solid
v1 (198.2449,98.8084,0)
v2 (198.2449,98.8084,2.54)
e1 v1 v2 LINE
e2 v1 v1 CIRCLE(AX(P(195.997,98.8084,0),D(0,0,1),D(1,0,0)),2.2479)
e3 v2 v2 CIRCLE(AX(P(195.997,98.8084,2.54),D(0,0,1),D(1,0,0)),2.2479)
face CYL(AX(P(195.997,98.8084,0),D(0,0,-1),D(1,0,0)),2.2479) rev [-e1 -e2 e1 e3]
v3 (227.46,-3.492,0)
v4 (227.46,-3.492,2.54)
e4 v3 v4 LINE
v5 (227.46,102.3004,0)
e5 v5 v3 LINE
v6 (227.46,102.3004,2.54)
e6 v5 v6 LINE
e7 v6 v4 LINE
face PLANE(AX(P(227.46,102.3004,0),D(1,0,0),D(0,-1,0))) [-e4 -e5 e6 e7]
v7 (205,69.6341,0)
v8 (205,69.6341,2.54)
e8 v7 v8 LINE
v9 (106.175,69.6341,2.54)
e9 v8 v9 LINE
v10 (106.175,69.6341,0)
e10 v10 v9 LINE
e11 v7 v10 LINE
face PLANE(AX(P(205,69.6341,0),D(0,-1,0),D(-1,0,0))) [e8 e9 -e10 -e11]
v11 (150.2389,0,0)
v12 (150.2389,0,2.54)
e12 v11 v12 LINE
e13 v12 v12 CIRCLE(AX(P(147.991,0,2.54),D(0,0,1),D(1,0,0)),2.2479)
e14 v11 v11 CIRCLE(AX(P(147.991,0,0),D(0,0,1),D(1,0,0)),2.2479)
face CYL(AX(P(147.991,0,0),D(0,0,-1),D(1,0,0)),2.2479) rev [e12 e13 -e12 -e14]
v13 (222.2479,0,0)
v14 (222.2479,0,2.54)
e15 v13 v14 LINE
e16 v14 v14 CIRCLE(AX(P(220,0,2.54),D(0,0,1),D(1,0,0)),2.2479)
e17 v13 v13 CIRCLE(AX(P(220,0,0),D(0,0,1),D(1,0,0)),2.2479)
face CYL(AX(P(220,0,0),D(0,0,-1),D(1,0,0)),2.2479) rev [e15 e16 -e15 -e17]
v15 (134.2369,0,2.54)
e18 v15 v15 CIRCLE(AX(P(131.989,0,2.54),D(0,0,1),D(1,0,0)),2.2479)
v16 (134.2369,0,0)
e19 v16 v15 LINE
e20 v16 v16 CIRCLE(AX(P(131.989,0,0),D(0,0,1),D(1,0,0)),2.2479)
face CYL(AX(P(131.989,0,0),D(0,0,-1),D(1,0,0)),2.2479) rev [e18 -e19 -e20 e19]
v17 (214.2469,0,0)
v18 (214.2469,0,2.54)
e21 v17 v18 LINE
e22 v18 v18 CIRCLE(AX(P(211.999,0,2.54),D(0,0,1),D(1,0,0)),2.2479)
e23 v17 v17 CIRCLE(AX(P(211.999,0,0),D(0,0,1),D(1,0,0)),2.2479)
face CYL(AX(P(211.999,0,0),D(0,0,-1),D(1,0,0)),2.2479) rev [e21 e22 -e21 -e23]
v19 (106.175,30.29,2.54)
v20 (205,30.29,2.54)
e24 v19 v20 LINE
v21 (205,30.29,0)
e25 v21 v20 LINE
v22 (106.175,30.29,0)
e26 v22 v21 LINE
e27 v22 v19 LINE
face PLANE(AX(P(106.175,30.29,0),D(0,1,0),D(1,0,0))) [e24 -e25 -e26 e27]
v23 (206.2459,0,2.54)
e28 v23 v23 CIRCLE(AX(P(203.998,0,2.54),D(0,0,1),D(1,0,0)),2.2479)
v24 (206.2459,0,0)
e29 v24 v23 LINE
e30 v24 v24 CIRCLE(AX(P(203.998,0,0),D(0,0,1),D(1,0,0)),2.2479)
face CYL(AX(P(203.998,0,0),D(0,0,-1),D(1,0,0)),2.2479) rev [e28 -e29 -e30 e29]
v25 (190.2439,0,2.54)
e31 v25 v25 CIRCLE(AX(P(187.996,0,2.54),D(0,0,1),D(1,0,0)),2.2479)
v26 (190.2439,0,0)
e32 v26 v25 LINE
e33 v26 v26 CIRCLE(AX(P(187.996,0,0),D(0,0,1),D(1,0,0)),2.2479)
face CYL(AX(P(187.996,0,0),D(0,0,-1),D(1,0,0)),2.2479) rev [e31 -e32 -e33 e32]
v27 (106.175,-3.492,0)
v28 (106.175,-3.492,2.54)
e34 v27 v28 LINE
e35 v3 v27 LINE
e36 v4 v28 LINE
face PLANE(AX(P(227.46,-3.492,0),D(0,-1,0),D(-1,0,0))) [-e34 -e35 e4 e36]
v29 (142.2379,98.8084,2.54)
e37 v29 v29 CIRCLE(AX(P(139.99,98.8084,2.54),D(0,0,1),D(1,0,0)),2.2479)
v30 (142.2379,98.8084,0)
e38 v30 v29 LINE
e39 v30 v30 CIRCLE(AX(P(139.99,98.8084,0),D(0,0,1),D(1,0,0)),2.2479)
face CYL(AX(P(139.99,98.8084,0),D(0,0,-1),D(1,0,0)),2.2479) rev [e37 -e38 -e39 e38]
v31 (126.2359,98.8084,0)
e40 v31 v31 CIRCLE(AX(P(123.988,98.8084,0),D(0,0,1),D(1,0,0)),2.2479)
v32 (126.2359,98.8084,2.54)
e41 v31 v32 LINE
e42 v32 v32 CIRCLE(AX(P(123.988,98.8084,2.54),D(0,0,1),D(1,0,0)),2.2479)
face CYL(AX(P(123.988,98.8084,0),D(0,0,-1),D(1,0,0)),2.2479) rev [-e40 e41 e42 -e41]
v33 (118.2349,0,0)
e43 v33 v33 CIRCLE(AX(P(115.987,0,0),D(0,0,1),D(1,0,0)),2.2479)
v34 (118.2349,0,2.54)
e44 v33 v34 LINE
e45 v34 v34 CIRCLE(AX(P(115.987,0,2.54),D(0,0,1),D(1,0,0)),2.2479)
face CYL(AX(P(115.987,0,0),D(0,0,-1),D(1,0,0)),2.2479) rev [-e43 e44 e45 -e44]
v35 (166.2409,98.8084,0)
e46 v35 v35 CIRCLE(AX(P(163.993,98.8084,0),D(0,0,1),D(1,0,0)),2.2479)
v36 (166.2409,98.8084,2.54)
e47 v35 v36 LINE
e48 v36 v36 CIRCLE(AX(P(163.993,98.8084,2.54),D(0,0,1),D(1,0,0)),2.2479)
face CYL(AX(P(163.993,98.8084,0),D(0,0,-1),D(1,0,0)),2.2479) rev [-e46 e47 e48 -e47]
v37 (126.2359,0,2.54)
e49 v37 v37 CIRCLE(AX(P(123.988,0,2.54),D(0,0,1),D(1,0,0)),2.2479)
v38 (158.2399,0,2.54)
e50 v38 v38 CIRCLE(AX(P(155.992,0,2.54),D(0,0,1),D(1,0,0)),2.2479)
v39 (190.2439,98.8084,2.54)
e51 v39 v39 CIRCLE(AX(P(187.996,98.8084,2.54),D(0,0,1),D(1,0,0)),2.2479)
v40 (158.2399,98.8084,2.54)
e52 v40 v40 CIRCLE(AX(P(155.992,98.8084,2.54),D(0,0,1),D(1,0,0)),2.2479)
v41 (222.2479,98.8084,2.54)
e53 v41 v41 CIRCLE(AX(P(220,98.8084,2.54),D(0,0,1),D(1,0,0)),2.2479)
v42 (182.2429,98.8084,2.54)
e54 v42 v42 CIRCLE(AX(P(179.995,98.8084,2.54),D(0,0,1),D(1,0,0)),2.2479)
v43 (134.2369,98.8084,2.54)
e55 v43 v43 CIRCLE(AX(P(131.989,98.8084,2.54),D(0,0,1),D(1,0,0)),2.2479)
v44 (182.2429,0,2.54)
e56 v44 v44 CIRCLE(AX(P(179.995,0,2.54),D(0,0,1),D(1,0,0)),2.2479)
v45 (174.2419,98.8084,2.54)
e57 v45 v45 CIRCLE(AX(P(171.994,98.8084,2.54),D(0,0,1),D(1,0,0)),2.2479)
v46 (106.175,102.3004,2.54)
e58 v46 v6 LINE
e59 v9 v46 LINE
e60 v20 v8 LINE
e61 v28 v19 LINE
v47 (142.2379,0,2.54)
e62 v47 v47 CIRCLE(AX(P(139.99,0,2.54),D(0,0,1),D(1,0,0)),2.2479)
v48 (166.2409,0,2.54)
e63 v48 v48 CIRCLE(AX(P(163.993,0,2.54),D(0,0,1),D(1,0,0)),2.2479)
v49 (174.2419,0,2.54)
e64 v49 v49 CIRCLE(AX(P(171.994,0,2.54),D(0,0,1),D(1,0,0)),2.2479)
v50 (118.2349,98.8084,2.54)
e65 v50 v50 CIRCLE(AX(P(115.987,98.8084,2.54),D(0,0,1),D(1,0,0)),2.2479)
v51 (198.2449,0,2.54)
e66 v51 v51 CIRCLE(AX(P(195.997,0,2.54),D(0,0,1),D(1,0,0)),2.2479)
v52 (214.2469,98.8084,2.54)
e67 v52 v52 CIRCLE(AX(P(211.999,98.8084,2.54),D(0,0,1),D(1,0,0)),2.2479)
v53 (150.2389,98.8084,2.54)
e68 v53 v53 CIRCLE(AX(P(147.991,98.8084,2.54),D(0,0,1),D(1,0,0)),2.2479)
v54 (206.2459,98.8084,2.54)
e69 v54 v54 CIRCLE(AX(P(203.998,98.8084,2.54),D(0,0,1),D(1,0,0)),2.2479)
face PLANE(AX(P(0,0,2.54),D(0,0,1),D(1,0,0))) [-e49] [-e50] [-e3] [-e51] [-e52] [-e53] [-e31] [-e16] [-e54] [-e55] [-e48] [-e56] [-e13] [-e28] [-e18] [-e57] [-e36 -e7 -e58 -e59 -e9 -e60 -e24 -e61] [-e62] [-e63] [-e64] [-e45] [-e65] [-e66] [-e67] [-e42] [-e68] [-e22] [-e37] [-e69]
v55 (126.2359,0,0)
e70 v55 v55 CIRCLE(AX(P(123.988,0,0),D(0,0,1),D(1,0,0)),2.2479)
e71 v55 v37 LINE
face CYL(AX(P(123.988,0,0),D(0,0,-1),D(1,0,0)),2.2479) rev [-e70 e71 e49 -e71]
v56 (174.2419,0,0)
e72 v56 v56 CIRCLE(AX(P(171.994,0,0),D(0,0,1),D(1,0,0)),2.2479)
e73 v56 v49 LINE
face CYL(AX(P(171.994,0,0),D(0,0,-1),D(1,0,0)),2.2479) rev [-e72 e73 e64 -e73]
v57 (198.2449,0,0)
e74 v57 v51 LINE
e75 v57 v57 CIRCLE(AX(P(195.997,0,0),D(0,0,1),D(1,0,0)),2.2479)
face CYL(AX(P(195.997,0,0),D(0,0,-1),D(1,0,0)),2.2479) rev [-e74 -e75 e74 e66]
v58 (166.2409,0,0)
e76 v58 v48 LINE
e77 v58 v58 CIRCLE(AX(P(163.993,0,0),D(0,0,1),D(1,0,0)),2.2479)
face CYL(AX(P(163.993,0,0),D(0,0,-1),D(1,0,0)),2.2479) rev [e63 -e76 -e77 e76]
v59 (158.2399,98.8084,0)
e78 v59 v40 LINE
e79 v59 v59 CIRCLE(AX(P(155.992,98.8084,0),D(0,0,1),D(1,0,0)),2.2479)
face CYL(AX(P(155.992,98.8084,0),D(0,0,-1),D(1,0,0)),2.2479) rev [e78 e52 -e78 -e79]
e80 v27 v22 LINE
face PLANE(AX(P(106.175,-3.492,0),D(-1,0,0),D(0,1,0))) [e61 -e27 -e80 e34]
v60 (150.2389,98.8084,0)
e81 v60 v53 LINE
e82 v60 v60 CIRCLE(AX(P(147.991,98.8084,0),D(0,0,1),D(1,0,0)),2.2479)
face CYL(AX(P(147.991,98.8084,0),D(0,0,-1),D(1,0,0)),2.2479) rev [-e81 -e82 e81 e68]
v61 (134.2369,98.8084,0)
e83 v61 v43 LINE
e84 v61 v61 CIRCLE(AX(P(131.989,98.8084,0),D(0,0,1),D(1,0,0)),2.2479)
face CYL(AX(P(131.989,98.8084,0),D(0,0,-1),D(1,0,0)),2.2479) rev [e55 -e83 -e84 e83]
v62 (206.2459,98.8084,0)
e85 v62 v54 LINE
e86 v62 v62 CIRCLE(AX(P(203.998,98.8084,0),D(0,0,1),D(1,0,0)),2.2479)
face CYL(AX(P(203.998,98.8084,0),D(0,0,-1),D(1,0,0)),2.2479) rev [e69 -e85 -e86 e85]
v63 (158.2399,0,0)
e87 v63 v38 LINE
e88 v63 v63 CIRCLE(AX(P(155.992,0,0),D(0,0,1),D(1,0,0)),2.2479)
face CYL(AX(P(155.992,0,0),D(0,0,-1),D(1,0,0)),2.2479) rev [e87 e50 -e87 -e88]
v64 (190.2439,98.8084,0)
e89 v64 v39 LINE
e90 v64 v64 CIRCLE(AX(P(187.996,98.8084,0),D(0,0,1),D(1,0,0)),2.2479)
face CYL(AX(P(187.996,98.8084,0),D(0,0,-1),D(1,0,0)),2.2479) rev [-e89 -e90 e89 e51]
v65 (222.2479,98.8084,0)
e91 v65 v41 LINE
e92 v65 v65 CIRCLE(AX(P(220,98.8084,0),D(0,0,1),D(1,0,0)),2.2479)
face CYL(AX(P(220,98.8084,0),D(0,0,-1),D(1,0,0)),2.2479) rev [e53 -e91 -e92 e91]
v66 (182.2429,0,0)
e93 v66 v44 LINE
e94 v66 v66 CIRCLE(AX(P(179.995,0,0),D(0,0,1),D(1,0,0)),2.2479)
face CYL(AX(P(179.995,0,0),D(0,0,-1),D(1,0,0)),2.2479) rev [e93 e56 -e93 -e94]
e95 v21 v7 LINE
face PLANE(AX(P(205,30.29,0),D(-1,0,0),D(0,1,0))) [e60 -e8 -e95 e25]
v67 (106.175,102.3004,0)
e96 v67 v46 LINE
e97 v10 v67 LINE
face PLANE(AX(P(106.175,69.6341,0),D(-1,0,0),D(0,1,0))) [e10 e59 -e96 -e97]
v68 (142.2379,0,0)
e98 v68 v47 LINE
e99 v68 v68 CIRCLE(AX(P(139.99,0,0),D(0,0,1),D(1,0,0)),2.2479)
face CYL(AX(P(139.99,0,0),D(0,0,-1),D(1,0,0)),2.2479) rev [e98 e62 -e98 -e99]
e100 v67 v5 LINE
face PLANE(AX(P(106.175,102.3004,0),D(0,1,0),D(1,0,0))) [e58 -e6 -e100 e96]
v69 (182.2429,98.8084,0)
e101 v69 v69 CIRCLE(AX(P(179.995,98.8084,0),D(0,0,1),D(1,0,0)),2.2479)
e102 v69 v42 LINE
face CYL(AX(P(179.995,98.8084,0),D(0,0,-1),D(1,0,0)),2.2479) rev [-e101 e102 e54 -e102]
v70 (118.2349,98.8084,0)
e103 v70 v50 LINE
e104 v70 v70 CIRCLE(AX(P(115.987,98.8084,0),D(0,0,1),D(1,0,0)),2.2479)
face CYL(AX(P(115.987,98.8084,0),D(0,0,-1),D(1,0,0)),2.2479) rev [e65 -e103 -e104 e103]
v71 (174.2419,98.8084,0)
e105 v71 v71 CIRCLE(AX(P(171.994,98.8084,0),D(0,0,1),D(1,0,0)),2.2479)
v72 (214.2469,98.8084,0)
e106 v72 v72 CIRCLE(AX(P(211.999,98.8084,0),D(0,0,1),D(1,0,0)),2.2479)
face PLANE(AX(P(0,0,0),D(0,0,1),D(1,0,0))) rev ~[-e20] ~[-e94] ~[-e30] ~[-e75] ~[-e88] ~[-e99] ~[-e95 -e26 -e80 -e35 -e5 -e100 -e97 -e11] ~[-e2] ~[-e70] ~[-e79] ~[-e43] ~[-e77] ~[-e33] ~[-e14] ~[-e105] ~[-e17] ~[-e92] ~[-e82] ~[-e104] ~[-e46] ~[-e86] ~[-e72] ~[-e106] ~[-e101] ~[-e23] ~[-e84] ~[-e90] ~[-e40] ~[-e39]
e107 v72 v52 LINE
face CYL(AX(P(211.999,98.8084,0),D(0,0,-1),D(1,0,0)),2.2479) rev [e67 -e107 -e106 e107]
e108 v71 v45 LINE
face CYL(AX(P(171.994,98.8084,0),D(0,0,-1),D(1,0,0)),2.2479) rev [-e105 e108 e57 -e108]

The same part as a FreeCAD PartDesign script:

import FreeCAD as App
import Part
import Sketcher

V = App.Vector
Q = App.Units.Quantity

doc = App.newDocument("Part")
params = doc.addObject("Spreadsheet::Sheet", "Params")
for row, (alias, value) in enumerate([
    ("sketch1_diameter", "0.177 in"),
    ("sketch1_height", "1.33 in"),
    ("sketch1_width", "4.775 in"),
    ("pad1_length", "0.1 in"),
], start=1):
    params.set(f"A{row}", alias)
    params.set(f"B{row}", "=" + value)
    params.setAlias(f"B{row}", alias)

body = doc.addObject("PartDesign::Body", "Body")

# Sketch on XY plane
sketch1 = body.newObject("Sketcher::SketchObject", "Sketch")
sketch1.AttachmentSupport = (doc.getObject("XY_Plane"), [""])
sketch1.MapMode = "FlatFace"
sketch1.addGeometry(Part.LineSegment(V(227.46, 102.3004, 0), V(106.175, 102.3004, 0)), False)
sketch1.addGeometry(Part.LineSegment(V(106.175, 102.3004, 0), V(106.175, 69.6341, 0)), False)
sketch1.addGeometry(Part.LineSegment(V(106.175, 69.6341, 0), V(205, 69.6341, 0)), False)
sketch1.addGeometry(Part.LineSegment(V(205, 69.6341, 0), V(205, 30.29, 0)), False)
sketch1.addGeometry(Part.LineSegment(V(205, 30.29, 0), V(106.175, 30.29, 0)), False)
sketch1.addGeometry(Part.LineSegment(V(106.175, 30.29, 0), V(106.175, -3.492, 0)), False)
sketch1.addGeometry(Part.LineSegment(V(106.175, -3.492, 0), V(227.46, -3.492, 0)), False)
sketch1.addGeometry(Part.LineSegment(V(227.46, -3.492, 0), V(227.46, 102.3004, 0)), False)
sketch1.addGeometry(Part.Circle(V(115.987, 0, 0), V(0, 0, 1), 2.2479), False)
sketch1.addGeometry(Part.Circle(V(123.988, 0, 0), V(0, 0, 1), 2.2479), False)
sketch1.addGeometry(Part.Circle(V(131.989, 0, 0), V(0, 0, 1), 2.2479), False)
sketch1.addGeometry(Part.Circle(V(139.99, 0, 0), V(0, 0, 1), 2.2479), False)
sketch1.addGeometry(Part.Circle(V(147.991, 0, 0), V(0, 0, 1), 2.2479), False)
sketch1.addGeometry(Part.Circle(V(155.992, 0, 0), V(0, 0, 1), 2.2479), False)
sketch1.addGeometry(Part.Circle(V(163.993, 0, 0), V(0, 0, 1), 2.2479), False)
sketch1.addGeometry(Part.Circle(V(171.994, 0, 0), V(0, 0, 1), 2.2479), False)
sketch1.addGeometry(Part.Circle(V(179.995, 0, 0), V(0, 0, 1), 2.2479), False)
sketch1.addGeometry(Part.Circle(V(187.996, 0, 0), V(0, 0, 1), 2.2479), False)
sketch1.addGeometry(Part.Circle(V(195.997, 0, 0), V(0, 0, 1), 2.2479), False)
sketch1.addGeometry(Part.Circle(V(203.998, 0, 0), V(0, 0, 1), 2.2479), False)
sketch1.addGeometry(Part.Circle(V(211.999, 0, 0), V(0, 0, 1), 2.2479), False)
sketch1.addGeometry(Part.Circle(V(220, 0, 0), V(0, 0, 1), 2.2479), False)
sketch1.addGeometry(Part.Circle(V(115.987, 98.8084, 0), V(0, 0, 1), 2.2479), False)
sketch1.addGeometry(Part.Circle(V(123.988, 98.8084, 0), V(0, 0, 1), 2.2479), False)
sketch1.addGeometry(Part.Circle(V(131.989, 98.8084, 0), V(0, 0, 1), 2.2479), False)
sketch1.addGeometry(Part.Circle(V(139.99, 98.8084, 0), V(0, 0, 1), 2.2479), False)
sketch1.addGeometry(Part.Circle(V(147.991, 98.8084, 0), V(0, 0, 1), 2.2479), False)
sketch1.addGeometry(Part.Circle(V(155.992, 98.8084, 0), V(0, 0, 1), 2.2479), False)
sketch1.addGeometry(Part.Circle(V(163.993, 98.8084, 0), V(0, 0, 1), 2.2479), False)
sketch1.addGeometry(Part.Circle(V(171.994, 98.8084, 0), V(0, 0, 1), 2.2479), False)
sketch1.addGeometry(Part.Circle(V(179.995, 98.8084, 0), V(0, 0, 1), 2.2479), False)
sketch1.addGeometry(Part.Circle(V(187.996, 98.8084, 0), V(0, 0, 1), 2.2479), False)
sketch1.addGeometry(Part.Circle(V(195.997, 98.8084, 0), V(0, 0, 1), 2.2479), False)
sketch1.addGeometry(Part.Circle(V(203.998, 98.8084, 0), V(0, 0, 1), 2.2479), False)
sketch1.addGeometry(Part.Circle(V(211.999, 98.8084, 0), V(0, 0, 1), 2.2479), False)
sketch1.addGeometry(Part.Circle(V(220, 98.8084, 0), V(0, 0, 1), 2.2479), False)
sketch1.addConstraint(Sketcher.Constraint("Coincident", 0, 2, 1, 1))
sketch1.addConstraint(Sketcher.Constraint("Coincident", 1, 2, 2, 1))
sketch1.addConstraint(Sketcher.Constraint("Coincident", 2, 2, 3, 1))
sketch1.addConstraint(Sketcher.Constraint("Coincident", 3, 2, 4, 1))
sketch1.addConstraint(Sketcher.Constraint("Coincident", 4, 2, 5, 1))
sketch1.addConstraint(Sketcher.Constraint("Coincident", 5, 2, 6, 1))
sketch1.addConstraint(Sketcher.Constraint("Coincident", 6, 2, 7, 1))
sketch1.addConstraint(Sketcher.Constraint("Coincident", 7, 2, 0, 1))
sketch1.addConstraint(Sketcher.Constraint("Horizontal", 0))
sketch1.addConstraint(Sketcher.Constraint("Vertical", 1))
sketch1.addConstraint(Sketcher.Constraint("Horizontal", 2))
sketch1.addConstraint(Sketcher.Constraint("Vertical", 3))
sketch1.addConstraint(Sketcher.Constraint("Horizontal", 4))
sketch1.addConstraint(Sketcher.Constraint("Vertical", 5))
sketch1.addConstraint(Sketcher.Constraint("Horizontal", 6))
sketch1.addConstraint(Sketcher.Constraint("Vertical", 7))
sketch1.addConstraint(Sketcher.Constraint("Equal", 8, 9))
sketch1.addConstraint(Sketcher.Constraint("Equal", 9, 10))
sketch1.addConstraint(Sketcher.Constraint("Equal", 10, 11))
sketch1.addConstraint(Sketcher.Constraint("Equal", 11, 12))
sketch1.addConstraint(Sketcher.Constraint("Equal", 12, 13))
sketch1.addConstraint(Sketcher.Constraint("Equal", 13, 14))
sketch1.addConstraint(Sketcher.Constraint("Equal", 14, 15))
sketch1.addConstraint(Sketcher.Constraint("Equal", 15, 16))
sketch1.addConstraint(Sketcher.Constraint("Equal", 16, 17))
sketch1.addConstraint(Sketcher.Constraint("Equal", 17, 18))
sketch1.addConstraint(Sketcher.Constraint("Equal", 18, 19))
sketch1.addConstraint(Sketcher.Constraint("Equal", 19, 20))
sketch1.addConstraint(Sketcher.Constraint("Equal", 20, 21))
sketch1.addConstraint(Sketcher.Constraint("Equal", 21, 22))
sketch1.addConstraint(Sketcher.Constraint("Equal", 22, 23))
sketch1.addConstraint(Sketcher.Constraint("Equal", 23, 24))
sketch1.addConstraint(Sketcher.Constraint("Equal", 24, 25))
sketch1.addConstraint(Sketcher.Constraint("Equal", 25, 26))
sketch1.addConstraint(Sketcher.Constraint("Equal", 26, 27))
sketch1.addConstraint(Sketcher.Constraint("Equal", 27, 28))
sketch1.addConstraint(Sketcher.Constraint("Equal", 28, 29))
sketch1.addConstraint(Sketcher.Constraint("Equal", 29, 30))
sketch1.addConstraint(Sketcher.Constraint("Equal", 30, 31))
sketch1.addConstraint(Sketcher.Constraint("Equal", 31, 32))
sketch1.addConstraint(Sketcher.Constraint("Equal", 32, 33))
sketch1.addConstraint(Sketcher.Constraint("Equal", 33, 34))
sketch1.addConstraint(Sketcher.Constraint("Equal", 34, 35))
sketch1.addConstraint(Sketcher.Constraint("PointOnObject", 8, 3, -1))
sketch1.addConstraint(Sketcher.Constraint("PointOnObject", 9, 3, -1))
sketch1.addConstraint(Sketcher.Constraint("PointOnObject", 10, 3, -1))
sketch1.addConstraint(Sketcher.Constraint("PointOnObject", 11, 3, -1))
sketch1.addConstraint(Sketcher.Constraint("PointOnObject", 12, 3, -1))
sketch1.addConstraint(Sketcher.Constraint("PointOnObject", 13, 3, -1))
sketch1.addConstraint(Sketcher.Constraint("PointOnObject", 14, 3, -1))
sketch1.addConstraint(Sketcher.Constraint("PointOnObject", 15, 3, -1))
sketch1.addConstraint(Sketcher.Constraint("PointOnObject", 16, 3, -1))
sketch1.addConstraint(Sketcher.Constraint("PointOnObject", 17, 3, -1))
sketch1.addConstraint(Sketcher.Constraint("PointOnObject", 18, 3, -1))
sketch1.addConstraint(Sketcher.Constraint("PointOnObject", 19, 3, -1))
sketch1.addConstraint(Sketcher.Constraint("PointOnObject", 20, 3, -1))
sketch1.addConstraint(Sketcher.Constraint("PointOnObject", 21, 3, -1))
sketch1.addConstraint(Sketcher.Constraint("Horizontal", 22, 3, 23, 3))
sketch1.addConstraint(Sketcher.Constraint("Horizontal", 23, 3, 24, 3))
sketch1.addConstraint(Sketcher.Constraint("Horizontal", 24, 3, 25, 3))
sketch1.addConstraint(Sketcher.Constraint("Horizontal", 25, 3, 26, 3))
sketch1.addConstraint(Sketcher.Constraint("Horizontal", 26, 3, 27, 3))
sketch1.addConstraint(Sketcher.Constraint("Horizontal", 27, 3, 28, 3))
sketch1.addConstraint(Sketcher.Constraint("Horizontal", 28, 3, 29, 3))
sketch1.addConstraint(Sketcher.Constraint("Horizontal", 29, 3, 30, 3))
sketch1.addConstraint(Sketcher.Constraint("Horizontal", 30, 3, 31, 3))
sketch1.addConstraint(Sketcher.Constraint("Horizontal", 31, 3, 32, 3))
sketch1.addConstraint(Sketcher.Constraint("Horizontal", 32, 3, 33, 3))
sketch1.addConstraint(Sketcher.Constraint("Horizontal", 33, 3, 34, 3))
sketch1.addConstraint(Sketcher.Constraint("Horizontal", 34, 3, 35, 3))
sketch1.addConstraint(Sketcher.Constraint("Vertical", 8, 3, 22, 3))
sketch1.addConstraint(Sketcher.Constraint("Vertical", 9, 3, 23, 3))
sketch1.addConstraint(Sketcher.Constraint("Vertical", 10, 3, 24, 3))
sketch1.addConstraint(Sketcher.Constraint("Vertical", 11, 3, 25, 3))
sketch1.addConstraint(Sketcher.Constraint("Vertical", 12, 3, 26, 3))
sketch1.addConstraint(Sketcher.Constraint("Vertical", 13, 3, 27, 3))
sketch1.addConstraint(Sketcher.Constraint("Vertical", 14, 3, 28, 3))
sketch1.addConstraint(Sketcher.Constraint("Vertical", 15, 3, 29, 3))
sketch1.addConstraint(Sketcher.Constraint("Vertical", 16, 3, 30, 3))
sketch1.addConstraint(Sketcher.Constraint("Vertical", 17, 3, 31, 3))
sketch1.addConstraint(Sketcher.Constraint("Vertical", 18, 3, 32, 3))
sketch1.addConstraint(Sketcher.Constraint("Vertical", 19, 3, 33, 3))
sketch1.addConstraint(Sketcher.Constraint("Vertical", 20, 3, 34, 3))
sketch1.addConstraint(Sketcher.Constraint("Vertical", 21, 3, 35, 3))
sketch1.addConstraint(Sketcher.Constraint("Vertical", 1, 2, 4, 2))
sketch1.addConstraint(Sketcher.Constraint("Diameter", 8, Q("0.177 in")))
sketch1.addConstraint(Sketcher.Constraint("DistanceX", 8, 3, 9, 3, Q("0.315 in")))
sketch1.addConstraint(Sketcher.Constraint("DistanceX", 9, 3, 10, 3, Q("0.315 in")))
sketch1.addConstraint(Sketcher.Constraint("DistanceX", 10, 3, 11, 3, Q("0.315 in")))
sketch1.addConstraint(Sketcher.Constraint("DistanceX", 11, 3, 12, 3, Q("0.315 in")))
sketch1.addConstraint(Sketcher.Constraint("DistanceX", 12, 3, 13, 3, Q("0.315 in")))
sketch1.addConstraint(Sketcher.Constraint("DistanceX", 13, 3, 14, 3, Q("0.315 in")))
sketch1.addConstraint(Sketcher.Constraint("DistanceX", 14, 3, 15, 3, Q("0.315 in")))
sketch1.addConstraint(Sketcher.Constraint("DistanceX", 15, 3, 16, 3, Q("0.315 in")))
sketch1.addConstraint(Sketcher.Constraint("DistanceX", 16, 3, 17, 3, Q("0.315 in")))
sketch1.addConstraint(Sketcher.Constraint("DistanceX", 17, 3, 18, 3, Q("0.315 in")))
sketch1.addConstraint(Sketcher.Constraint("DistanceX", 18, 3, 19, 3, Q("0.315 in")))
sketch1.addConstraint(Sketcher.Constraint("DistanceX", 19, 3, 20, 3, Q("0.315 in")))
sketch1.addConstraint(Sketcher.Constraint("DistanceX", 20, 3, 21, 3, Q("0.315 in")))
sketch1.addConstraint(Sketcher.Constraint("DistanceY", 5, 2, 5, 1, Q("1.33 in")))
sketch1.addConstraint(Sketcher.Constraint("DistanceX", 0, 2, 0, 1, Q("4.775 in")))
sketch1.addConstraint(Sketcher.Constraint("DistanceX", 2, 1, 2, 2, Q("98.825 mm")))
sketch1.addConstraint(Sketcher.Constraint("DistanceY", 1, 2, 1, 1, Q("32.6663 mm")))
sketch1.addConstraint(Sketcher.Constraint("DistanceY", 3, 2, 3, 1, Q("39.344 mm")))
sketch1.addConstraint(Sketcher.Constraint("DistanceY", -1, 1, 22, 3, Q("3.8901 in")))
sketch1.addConstraint(Sketcher.Constraint("DistanceY", -1, 1, 1, 2, Q("2.7415 in")))
sketch1.addConstraint(Sketcher.Constraint("DistanceX", 0, 2, 22, 3, Q("0.3863 in")))
sketch1.addConstraint(Sketcher.Constraint("DistanceX", -1, 1, 8, 3, Q("115.987 mm")))
sketch1.setExpression("Constraints[85]", "Params.sketch1_diameter")
sketch1.setExpression("Constraints[99]", "Params.sketch1_height")
sketch1.setExpression("Constraints[100]", "Params.sketch1_width")
pad1 = body.newObject("PartDesign::Pad", "Pad")
pad1.Profile = sketch1
pad1.setExpression("Length", "Params.pad1_length")

doc.recompute()
